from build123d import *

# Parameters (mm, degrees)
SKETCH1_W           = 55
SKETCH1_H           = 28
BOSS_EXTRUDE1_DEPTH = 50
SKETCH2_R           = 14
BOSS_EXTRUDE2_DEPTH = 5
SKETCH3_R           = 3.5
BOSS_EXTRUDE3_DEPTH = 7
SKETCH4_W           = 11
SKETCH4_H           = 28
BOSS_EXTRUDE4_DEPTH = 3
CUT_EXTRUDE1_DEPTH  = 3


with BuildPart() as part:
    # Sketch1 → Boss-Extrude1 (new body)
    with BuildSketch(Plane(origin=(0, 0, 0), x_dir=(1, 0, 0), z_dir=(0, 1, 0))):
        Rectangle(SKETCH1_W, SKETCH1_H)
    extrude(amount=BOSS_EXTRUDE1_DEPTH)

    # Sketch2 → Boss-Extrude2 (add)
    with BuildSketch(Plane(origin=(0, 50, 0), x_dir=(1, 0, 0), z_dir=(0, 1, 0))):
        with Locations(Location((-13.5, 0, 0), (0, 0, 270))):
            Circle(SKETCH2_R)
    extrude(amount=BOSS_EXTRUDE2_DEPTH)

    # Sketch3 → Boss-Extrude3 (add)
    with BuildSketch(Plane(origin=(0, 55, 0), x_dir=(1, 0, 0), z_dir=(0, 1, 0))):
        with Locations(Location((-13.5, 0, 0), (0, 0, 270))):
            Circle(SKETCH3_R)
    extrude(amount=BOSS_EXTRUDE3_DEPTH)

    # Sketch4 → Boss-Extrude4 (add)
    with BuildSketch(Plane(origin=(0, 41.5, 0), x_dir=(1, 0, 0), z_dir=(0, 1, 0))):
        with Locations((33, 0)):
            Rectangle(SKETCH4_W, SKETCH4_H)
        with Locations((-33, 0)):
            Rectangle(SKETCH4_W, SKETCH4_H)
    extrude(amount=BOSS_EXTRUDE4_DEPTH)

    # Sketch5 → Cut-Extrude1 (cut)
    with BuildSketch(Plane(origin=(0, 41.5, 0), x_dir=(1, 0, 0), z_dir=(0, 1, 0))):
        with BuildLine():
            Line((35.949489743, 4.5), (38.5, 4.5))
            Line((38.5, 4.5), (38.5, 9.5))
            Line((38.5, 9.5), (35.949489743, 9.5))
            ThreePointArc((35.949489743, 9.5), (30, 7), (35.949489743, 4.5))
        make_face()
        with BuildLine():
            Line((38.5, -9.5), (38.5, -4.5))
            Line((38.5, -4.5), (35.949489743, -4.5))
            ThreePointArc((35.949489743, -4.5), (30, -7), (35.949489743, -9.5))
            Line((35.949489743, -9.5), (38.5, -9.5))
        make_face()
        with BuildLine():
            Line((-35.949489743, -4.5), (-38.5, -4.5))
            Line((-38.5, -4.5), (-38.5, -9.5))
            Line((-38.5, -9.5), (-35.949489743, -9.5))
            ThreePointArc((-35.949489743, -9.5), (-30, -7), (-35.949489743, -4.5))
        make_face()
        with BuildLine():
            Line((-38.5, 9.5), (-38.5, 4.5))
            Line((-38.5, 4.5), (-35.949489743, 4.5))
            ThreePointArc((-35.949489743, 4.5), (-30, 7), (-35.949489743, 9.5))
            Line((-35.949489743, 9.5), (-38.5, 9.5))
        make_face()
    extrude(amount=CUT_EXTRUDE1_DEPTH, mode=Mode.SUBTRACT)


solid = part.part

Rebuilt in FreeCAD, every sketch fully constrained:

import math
import FreeCAD as App
import Part
import Sketcher
from FreeCAD import Vector

doc = App.newDocument("Part")
body = doc.addObject("PartDesign::Body", "Body")

# Sketch on XZ plane
sketch1 = doc.addObject("Sketcher::SketchObject", "Sketch")
body.addObject(sketch1)
sketch1.AttachmentSupport = (doc.XZ_Plane, [""])
sketch1.MapMode = "FlatFace"
sketch1.addGeometry(Part.LineSegment(Vector(-28, -14, 0), Vector(-28, 14, 0)), False)
sketch1.addGeometry(Part.LineSegment(Vector(-28, 14, 0), Vector(28, 14, 0)), False)
sketch1.addGeometry(Part.LineSegment(Vector(28, 14, 0), Vector(28, -14, 0)), False)
sketch1.addGeometry(Part.LineSegment(Vector(28, -14, 0), Vector(-28, -14, 0)), False)
sketch1.addConstraint(Sketcher.Constraint("Coincident", 0, 2, 1, 1))
sketch1.addConstraint(Sketcher.Constraint("Coincident", 1, 2, 2, 1))
sketch1.addConstraint(Sketcher.Constraint("Coincident", 2, 2, 3, 1))
sketch1.addConstraint(Sketcher.Constraint("Coincident", 3, 2, 0, 1))
sketch1.addConstraint(Sketcher.Constraint("Vertical", 0))
sketch1.addConstraint(Sketcher.Constraint("Horizontal", 1))
sketch1.addConstraint(Sketcher.Constraint("Vertical", 2))
sketch1.addConstraint(Sketcher.Constraint("Horizontal", 3))
sketch1.addConstraint(Sketcher.Constraint("Symmetric", 0, 2, 2, 2, -1, 1))
sketch1.addConstraint(Sketcher.Constraint("DistanceX", 1, 1, 1, 2, 55.0))
sketch1.addConstraint(Sketcher.Constraint("DistanceY", 0, 1, 0, 2, 28.0))
pad1 = doc.addObject("PartDesign::Pad", "Pad")
body.addObject(pad1)
pad1.Profile = sketch1
pad1.Length = 50
pad1.Reversed = True

# Sketch on XZ plane
sketch2 = doc.addObject("Sketcher::SketchObject", "Sketch001")
body.addObject(sketch2)
sketch2.AttachmentSupport = (doc.XZ_Plane, [""])
sketch2.MapMode = "FlatFace"
sketch2.AttachmentOffset = App.Placement(Vector(0, 0, -50), App.Rotation())
sketch2.addGeometry(Part.Circle(Vector(-14, 0, 0), Vector(0, 0, 1), 14), False)
sketch2.addConstraint(Sketcher.Constraint("PointOnObject", 0, 3, -1))
sketch2.addConstraint(Sketcher.Constraint("Diameter", 0, 28.0))
sketch2.addConstraint(Sketcher.Constraint("DistanceX", 0, 3, -1, 1, 13.5))
pad2 = doc.addObject("PartDesign::Pad", "Pad001")
body.addObject(pad2)
pad2.Profile = sketch2
pad2.Length = 5
pad2.Reversed = True

# Sketch on XZ plane
sketch3 = doc.addObject("Sketcher::SketchObject", "Sketch002")
body.addObject(sketch3)
sketch3.AttachmentSupport = (doc.XZ_Plane, [""])
sketch3.MapMode = "FlatFace"
sketch3.AttachmentOffset = App.Placement(Vector(0, 0, -55), App.Rotation())
sketch3.addGeometry(Part.Circle(Vector(-13.5, 0, 0), Vector(0, 0, 1), 3.5), False)
sketch3.addConstraint(Sketcher.Constraint("PointOnObject", 0, 3, -1))
sketch3.addConstraint(Sketcher.Constraint("Diameter", 0, 7.0))
sketch3.addConstraint(Sketcher.Constraint("DistanceX", 0, 3, -1, 1, 13.5))
pad3 = doc.addObject("PartDesign::Pad", "Pad002")
body.addObject(pad3)
pad3.Profile = sketch3
pad3.Length = 7
pad3.Reversed = True

# Sketch on XZ plane
sketch4 = doc.addObject("Sketcher::SketchObject", "Sketch003")
body.addObject(sketch4)
sketch4.AttachmentSupport = (doc.XZ_Plane, [""])
sketch4.MapMode = "FlatFace"
sketch4.AttachmentOffset = App.Placement(Vector(0, 0, -41.5), App.Rotation())
sketch4.addGeometry(Part.LineSegment(Vector(28, -14, 0), Vector(28, 14, 0)), False)
sketch4.addGeometry(Part.LineSegment(Vector(28, 14, 0), Vector(38, 14, 0)), False)
sketch4.addGeometry(Part.LineSegment(Vector(38, 14, 0), Vector(38, -14, 0)), False)
sketch4.addGeometry(Part.LineSegment(Vector(38, -14, 0), Vector(28, -14, 0)), False)
sketch4.addGeometry(Part.LineSegment(Vector(-38, -14, 0), Vector(-38, 14, 0)), False)
sketch4.addGeometry(Part.LineSegment(Vector(-38, 14, 0), Vector(-28, 14, 0)), False)
sketch4.addGeometry(Part.LineSegment(Vector(-28, 14, 0), Vector(-28, -14, 0)), False)
sketch4.addGeometry(Part.LineSegment(Vector(-28, -14, 0), Vector(-38, -14, 0)), False)
sketch4.addConstraint(Sketcher.Constraint("Coincident", 0, 2, 1, 1))
sketch4.addConstraint(Sketcher.Constraint("Coincident", 1, 2, 2, 1))
sketch4.addConstraint(Sketcher.Constraint("Coincident", 2, 2, 3, 1))
sketch4.addConstraint(Sketcher.Constraint("Coincident", 3, 2, 0, 1))
sketch4.addConstraint(Sketcher.Constraint("Coincident", 4, 2, 5, 1))
sketch4.addConstraint(Sketcher.Constraint("Coincident", 5, 2, 6, 1))
sketch4.addConstraint(Sketcher.Constraint("Coincident", 6, 2, 7, 1))
sketch4.addConstraint(Sketcher.Constraint("Coincident", 7, 2, 4, 1))
sketch4.addConstraint(Sketcher.Constraint("Vertical", 0))
sketch4.addConstraint(Sketcher.Constraint("Horizontal", 1))
sketch4.addConstraint(Sketcher.Constraint("Vertical", 2))
sketch4.addConstraint(Sketcher.Constraint("Horizontal", 3))
sketch4.addConstraint(Sketcher.Constraint("Vertical", 4))
sketch4.addConstraint(Sketcher.Constraint("Horizontal", 5))
sketch4.addConstraint(Sketcher.Constraint("Vertical", 6))
sketch4.addConstraint(Sketcher.Constraint("Horizontal", 7))
sketch4.addConstraint(Sketcher.Constraint("Symmetric", 2, 2, 4, 2, -1, 1))
sketch4.addConstraint(Sketcher.Constraint("Symmetric", 0, 2, 6, 2, -1, 1))
sketch4.addConstraint(Sketcher.Constraint("Horizontal", 1, 2, 4, 2))
sketch4.addConstraint(Sketcher.Constraint("DistanceX", 1, 1, 1, 2, 11.0))
sketch4.addConstraint(Sketcher.Constraint("DistanceY", 0, 1, 0, 2, 28.0))
sketch4.addConstraint(Sketcher.Constraint("DistanceX", 4, 2, 0, 2, 66.0))
pad4 = doc.addObject("PartDesign::Pad", "Pad003")
body.addObject(pad4)
pad4.Profile = sketch4
pad4.Length = 3
pad4.Reversed = True

# Sketch on XZ plane
sketch5 = doc.addObject("Sketcher::SketchObject", "Sketch004")
body.addObject(sketch5)
sketch5.AttachmentSupport = (doc.XZ_Plane, [""])
sketch5.MapMode = "FlatFace"
sketch5.AttachmentOffset = App.Placement(Vector(0, 0, -41.5), App.Rotation())
sketch5.addGeometry(Part.LineSegment(Vector(35.9, -4.5, 0), Vector(38.5, -4.5, 0)), False)
sketch5.addGeometry(Part.LineSegment(Vector(38.5, -4.5, 0), Vector(38.5, -9.5, 0)), False)
sketch5.addGeometry(Part.LineSegment(Vector(38.5, -9.5, 0), Vector(35.9, -9.5, 0)), False)
sketch5.addGeometry(Part.ArcOfCircle(Part.Circle(Vector(33.5, -7, 0), Vector(0, 0, 1), 3.5), math.radians(46), math.radians(314)), False)
sketch5.addGeometry(Part.LineSegment(Vector(38.5, 9.5, 0), Vector(38.5, 4.5, 0)), False)
sketch5.addGeometry(Part.LineSegment(Vector(38.5, 4.5, 0), Vector(35.9, 4.5, 0)), False)
sketch5.addGeometry(Part.ArcOfCircle(Part.Circle(Vector(33.5, 7, 0), Vector(0, 0, 1), 3.5), math.radians(46), math.radians(314)), False)
sketch5.addGeometry(Part.LineSegment(Vector(35.9, 9.5, 0), Vector(38.5, 9.5, 0)), False)
sketch5.addGeometry(Part.LineSegment(Vector(-35.9, 4.5, 0), Vector(-38.5, 4.5, 0)), False)
sketch5.addGeometry(Part.LineSegment(Vector(-38.5, 4.5, 0), Vector(-38.5, 9.5, 0)), False)
sketch5.addGeometry(Part.LineSegment(Vector(-38.5, 9.5, 0), Vector(-35.9, 9.5, 0)), False)
sketch5.addGeometry(Part.ArcOfCircle(Part.Circle(Vector(-33.5, 7, 0), Vector(0, 0, 1), 3.5), math.radians(-134), math.radians(134)), False)
sketch5.addGeometry(Part.LineSegment(Vector(-38.5, -9.5, 0), Vector(-38.5, -4.5, 0)), False)
sketch5.addGeometry(Part.LineSegment(Vector(-38.5, -4.5, 0), Vector(-35.9, -4.5, 0)), False)
sketch5.addGeometry(Part.ArcOfCircle(Part.Circle(Vector(-33.5, -7, 0), Vector(0, 0, 1), 3.5), math.radians(-134), math.radians(134)), False)
sketch5.addGeometry(Part.LineSegment(Vector(-35.9, -9.5, 0), Vector(-38.5, -9.5, 0)), False)
sketch5.addConstraint(Sketcher.Constraint("Coincident", 0, 2, 1, 1))
sketch5.addConstraint(Sketcher.Constraint("Coincident", 1, 2, 2, 1))
sketch5.addConstraint(Sketcher.Constraint("Coincident", 2, 2, 3, 2))
sketch5.addConstraint(Sketcher.Constraint("Coincident", 3, 1, 0, 1))
sketch5.addConstraint(Sketcher.Constraint("Coincident", 4, 2, 5, 1))
sketch5.addConstraint(Sketcher.Constraint("Coincident", 5, 2, 6, 2))
sketch5.addConstraint(Sketcher.Constraint("Coincident", 6, 1, 7, 1))
sketch5.addConstraint(Sketcher.Constraint("Coincident", 7, 2, 4, 1))
sketch5.addConstraint(Sketcher.Constraint("Coincident", 8, 2, 9, 1))
sketch5.addConstraint(Sketcher.Constraint("Coincident", 9, 2, 10, 1))
sketch5.addConstraint(Sketcher.Constraint("Coincident", 10, 2, 11, 2))
sketch5.addConstraint(Sketcher.Constraint("Coincident", 11, 1, 8, 1))
sketch5.addConstraint(Sketcher.Constraint("Coincident", 12, 2, 13, 1))
sketch5.addConstraint(Sketcher.Constraint("Coincident", 13, 2, 14, 2))
sketch5.addConstraint(Sketcher.Constraint("Coincident", 14, 1, 15, 1))
sketch5.addConstraint(Sketcher.Constraint("Coincident", 15, 2, 12, 1))
sketch5.addConstraint(Sketcher.Constraint("Horizontal", 0))
sketch5.addConstraint(Sketcher.Constraint("Vertical", 1))
sketch5.addConstraint(Sketcher.Constraint("Horizontal", 2))
sketch5.addConstraint(Sketcher.Constraint("Vertical", 4))
sketch5.addConstraint(Sketcher.Constraint("Horizontal", 5))
sketch5.addConstraint(Sketcher.Constraint("Horizontal", 7))
sketch5.addConstraint(Sketcher.Constraint("Horizontal", 8))
sketch5.addConstraint(Sketcher.Constraint("Vertical", 9))
sketch5.addConstraint(Sketcher.Constraint("Horizontal", 10))
sketch5.addConstraint(Sketcher.Constraint("Vertical", 12))
sketch5.addConstraint(Sketcher.Constraint("Horizontal", 13))
sketch5.addConstraint(Sketcher.Constraint("Horizontal", 15))
sketch5.addConstraint(Sketcher.Constraint("Equal", 3, 6))
sketch5.addConstraint(Sketcher.Constraint("Equal", 6, 11))
sketch5.addConstraint(Sketcher.Constraint("Equal", 11, 14))
sketch5.addConstraint(Sketcher.Constraint("Symmetric", 3, 3, 11, 3, -1, 1))
sketch5.addConstraint(Sketcher.Constraint("Symmetric", 6, 3, 14, 3, -1, 1))
sketch5.addConstraint(Sketcher.Constraint("Symmetric", 0, 2, 8, 2, -1, 1))
sketch5.addConstraint(Sketcher.Constraint("Symmetric", 4, 2, 12, 2, -1, 1))
sketch5.addConstraint(Sketcher.Constraint("Symmetric", 6, 3, 11, 3, -2))
sketch5.addConstraint(Sketcher.Constraint("Symmetric", 4, 2, 8, 2, -2))
sketch5.addConstraint(Sketcher.Constraint("Horizontal", 7, 2, 9, 2))
sketch5.addConstraint(Sketcher.Constraint("Horizontal", 2, 2, 14, 1))
sketch5.addConstraint(Sketcher.Constraint("Vertical", 2, 2, 3, 1))
sketch5.addConstraint(Sketcher.Constraint("Vertical", 5, 2, 6, 1))
sketch5.addConstraint(Sketcher.Constraint("Radius", 3, 3.5))
sketch5.addConstraint(Sketcher.Constraint("DistanceY", 1, 2, 1, 1, 5.0))
sketch5.addConstraint(Sketcher.Constraint("DistanceY", 3, 3, -1, 1, 7.0))
sketch5.addConstraint(Sketcher.Constraint("DistanceX", 11, 3, 6, 3, 67.0))
sketch5.addConstraint(Sketcher.Constraint("DistanceX", 3, 3, 0, 2, 5.0))
pocket1 = doc.addObject("PartDesign::Pocket", "Pocket")
body.addObject(pocket1)
pocket1.Profile = sketch5
pocket1.Length = 3

doc.recompute()
